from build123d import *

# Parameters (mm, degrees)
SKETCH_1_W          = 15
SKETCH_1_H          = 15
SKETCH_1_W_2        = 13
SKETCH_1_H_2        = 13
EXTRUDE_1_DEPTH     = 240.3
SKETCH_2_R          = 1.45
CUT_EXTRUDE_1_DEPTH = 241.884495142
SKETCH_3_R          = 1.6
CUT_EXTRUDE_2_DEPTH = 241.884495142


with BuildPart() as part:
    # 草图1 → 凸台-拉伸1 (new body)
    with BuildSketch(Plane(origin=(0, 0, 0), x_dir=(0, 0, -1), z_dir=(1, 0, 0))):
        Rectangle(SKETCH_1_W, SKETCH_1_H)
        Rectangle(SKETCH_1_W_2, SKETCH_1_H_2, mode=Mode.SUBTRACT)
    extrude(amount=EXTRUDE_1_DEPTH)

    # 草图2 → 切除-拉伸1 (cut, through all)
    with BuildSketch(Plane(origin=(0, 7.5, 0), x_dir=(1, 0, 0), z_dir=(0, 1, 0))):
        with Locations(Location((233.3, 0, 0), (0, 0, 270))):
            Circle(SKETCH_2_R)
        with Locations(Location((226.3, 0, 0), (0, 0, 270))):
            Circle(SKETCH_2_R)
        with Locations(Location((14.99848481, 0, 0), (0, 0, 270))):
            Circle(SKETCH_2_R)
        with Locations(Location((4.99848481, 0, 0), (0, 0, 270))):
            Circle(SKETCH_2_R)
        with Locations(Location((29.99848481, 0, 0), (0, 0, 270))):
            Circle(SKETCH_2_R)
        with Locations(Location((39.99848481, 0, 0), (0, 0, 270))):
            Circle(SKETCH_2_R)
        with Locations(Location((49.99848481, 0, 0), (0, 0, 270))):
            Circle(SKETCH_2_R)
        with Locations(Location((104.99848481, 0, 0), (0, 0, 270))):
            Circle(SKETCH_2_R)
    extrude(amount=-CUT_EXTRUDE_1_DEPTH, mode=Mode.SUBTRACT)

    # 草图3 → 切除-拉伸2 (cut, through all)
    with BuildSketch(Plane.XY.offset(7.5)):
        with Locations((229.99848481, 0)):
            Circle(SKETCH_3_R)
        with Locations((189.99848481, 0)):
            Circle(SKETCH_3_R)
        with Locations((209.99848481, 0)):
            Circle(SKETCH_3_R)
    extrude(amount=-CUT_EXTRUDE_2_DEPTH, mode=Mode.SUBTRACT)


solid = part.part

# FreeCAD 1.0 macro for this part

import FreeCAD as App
import Part
import Sketcher
from FreeCAD import Vector


def add_polygon(sketch, points):
    """Adds a closed chain of lines whose ends are joined by coincident constraints."""
    first, n = sketch.GeometryCount, len(points)
    for a, b in zip(points, points[1:] + points[:1]):
        sketch.addGeometry(Part.LineSegment(App.Vector(*a, 0), App.Vector(*b, 0)), False)
    for i in range(n):
        sketch.addConstraint(Sketcher.Constraint("Coincident", first + i, 2, first + (i + 1) % n, 1))

doc = App.newDocument("Part")
body = doc.addObject("PartDesign::Body", "Body")

sketch1 = body.newObject("Sketcher::SketchObject", "Sketch")
sketch1.AttachmentSupport = (doc.getObject("YZ_Plane"), [""])
sketch1.MapMode = "FlatFace"
add_polygon(sketch1, [(8, 8), (-8, 8), (-8, -8), (8, -8)])
add_polygon(sketch1, [(-6, -6), (-6, 6), (6, 6), (6, -6)])
sketch1.addConstraint(Sketcher.Constraint("Horizontal", 0))
sketch1.addConstraint(Sketcher.Constraint("Vertical", 1))
sketch1.addConstraint(Sketcher.Constraint("Horizontal", 2))
sketch1.addConstraint(Sketcher.Constraint("Vertical", 3))
sketch1.addConstraint(Sketcher.Constraint("Vertical", 4))
sketch1.addConstraint(Sketcher.Constraint("Horizontal", 5))
sketch1.addConstraint(Sketcher.Constraint("Vertical", 6))
sketch1.addConstraint(Sketcher.Constraint("Horizontal", 7))
sketch1.addConstraint(Sketcher.Constraint("Symmetric", 0, 2, 2, 2, -1, 1))
sketch1.addConstraint(Sketcher.Constraint("Symmetric", 4, 2, 6, 2, -1, 1))
sketch1.addConstraint(Sketcher.Constraint("Equal", 2, 1))
sketch1.addConstraint(Sketcher.Constraint("Equal", 7, 4))
sketch1.addConstraint(Sketcher.Constraint("DistanceX", 0, 2, 0, 1, 15.0))
sketch1.addConstraint(Sketcher.Constraint("DistanceX", 5, 1, 5, 2, 13.0))
pad1 = body.newObject("PartDesign::Pad", "Pad")
pad1.Profile = sketch1
pad1.Length = 240.3

sketch2 = body.newObject("Sketcher::SketchObject", "Sketch001")
sketch2.AttachmentSupport = (doc.getObject("XZ_Plane"), [""])
sketch2.MapMode = "FlatFace"
sketch2.AttachmentOffset = App.Placement(Vector(0, 0, -7.5), App.Rotation())
sketch2.addGeometry(Part.Circle(Vector(233.3, 0, 0), Vector(0, 0, 1), 1.4), False)
sketch2.addGeometry(Part.Circle(Vector(226.3, 0, 0), Vector(0, 0, 1), 1.4), False)
sketch2.addGeometry(Part.Circle(Vector(15, 0, 0), Vector(0, 0, 1), 1.4), False)
sketch2.addGeometry(Part.Circle(Vector(5, 0, 0), Vector(0, 0, 1), 1.4), False)
sketch2.addGeometry(Part.Circle(Vector(30, 0, 0), Vector(0, 0, 1), 1.4), False)
sketch2.addGeometry(Part.Circle(Vector(40, 0, 0), Vector(0, 0, 1), 1.4), False)
sketch2.addGeometry(Part.Circle(Vector(50, 0, 0), Vector(0, 0, 1), 1.4), False)
sketch2.addGeometry(Part.Circle(Vector(105, 0, 0), Vector(0, 0, 1), 1.4), False)
sketch2.addConstraint(Sketcher.Constraint("Equal", 0, 1))
sketch2.addConstraint(Sketcher.Constraint("Equal", 1, 2))
sketch2.addConstraint(Sketcher.Constraint("Equal", 2, 3))
sketch2.addConstraint(Sketcher.Constraint("Equal", 3, 4))
sketch2.addConstraint(Sketcher.Constraint("Equal", 4, 5))
sketch2.addConstraint(Sketcher.Constraint("Equal", 5, 6))
sketch2.addConstraint(Sketcher.Constraint("Equal", 6, 7))
sketch2.addConstraint(Sketcher.Constraint("PointOnObject", 0, 3, -1))
sketch2.addConstraint(Sketcher.Constraint("PointOnObject", 1, 3, -1))
sketch2.addConstraint(Sketcher.Constraint("PointOnObject", 2, 3, -1))
sketch2.addConstraint(Sketcher.Constraint("PointOnObject", 3, 3, -1))
sketch2.addConstraint(Sketcher.Constraint("PointOnObject", 4, 3, -1))
sketch2.addConstraint(Sketcher.Constraint("PointOnObject", 5, 3, -1))
sketch2.addConstraint(Sketcher.Constraint("PointOnObject", 6, 3, -1))
sketch2.addConstraint(Sketcher.Constraint("PointOnObject", 7, 3, -1))
sketch2.addConstraint(Sketcher.Constraint("Diameter", 0, 2.9))
sketch2.addConstraint(Sketcher.Constraint("DistanceX", 1, 3, 0, 3, 7.0))
sketch2.addConstraint(Sketcher.Constraint("DistanceX", 3, 3, 2, 3, 10.0))
sketch2.addConstraint(Sketcher.Constraint("DistanceX", 2, 3, 4, 3, 15.0))
sketch2.addConstraint(Sketcher.Constraint("DistanceX", 4, 3, 5, 3, 10.0))
sketch2.addConstraint(Sketcher.Constraint("DistanceX", 5, 3, 6, 3, 10.0))
sketch2.addConstraint(Sketcher.Constraint("DistanceX", 6, 3, 7, 3, 55.0))
sketch2.addConstraint(Sketcher.Constraint("DistanceX", -1, 1, 0, 3, 233.3))
sketch2.addConstraint(Sketcher.Constraint("DistanceX", -1, 1, 2, 3, 14.998485))
pocket1 = body.newObject("PartDesign::Pocket", "Pocket")
pocket1.Profile = sketch2
pocket1.Type = "ThroughAll"
pocket1.Reversed = True

sketch3 = body.newObject("Sketcher::SketchObject", "Sketch002")
sketch3.AttachmentSupport = (doc.getObject("XY_Plane"), [""])
sketch3.MapMode = "FlatFace"
sketch3.AttachmentOffset = App.Placement(Vector(0, 0, 7.5), App.Rotation())
sketch3.addGeometry(Part.Circle(Vector(230, 0, 0), Vector(0, 0, 1), 1.6), False)
sketch3.addGeometry(Part.Circle(Vector(190, 0, 0), Vector(0, 0, 1), 1.6), False)
sketch3.addGeometry(Part.Circle(Vector(210, 0, 0), Vector(0, 0, 1), 1.6), False)
sketch3.addConstraint(Sketcher.Constraint("Equal", 0, 1))
sketch3.addConstraint(Sketcher.Constraint("Equal", 1, 2))
sketch3.addConstraint(Sketcher.Constraint("PointOnObject", 0, 3, -1))
sketch3.addConstraint(Sketcher.Constraint("PointOnObject", 1, 3, -1))
sketch3.addConstraint(Sketcher.Constraint("PointOnObject", 2, 3, -1))
sketch3.addConstraint(Sketcher.Constraint("Diameter", 0, 3.2))
sketch3.addConstraint(Sketcher.Constraint("DistanceX", 1, 3, 0, 3, 40.0))
sketch3.addConstraint(Sketcher.Constraint("DistanceX", 2, 3, 0, 3, 20.0))
sketch3.addConstraint(Sketcher.Constraint("DistanceX", -1, 1, 0, 3, 229.998485))
pocket2 = body.newObject("PartDesign::Pocket", "Pocket001")
pocket2.Profile = sketch3
pocket2.Type = "ThroughAll"

doc.recompute()
